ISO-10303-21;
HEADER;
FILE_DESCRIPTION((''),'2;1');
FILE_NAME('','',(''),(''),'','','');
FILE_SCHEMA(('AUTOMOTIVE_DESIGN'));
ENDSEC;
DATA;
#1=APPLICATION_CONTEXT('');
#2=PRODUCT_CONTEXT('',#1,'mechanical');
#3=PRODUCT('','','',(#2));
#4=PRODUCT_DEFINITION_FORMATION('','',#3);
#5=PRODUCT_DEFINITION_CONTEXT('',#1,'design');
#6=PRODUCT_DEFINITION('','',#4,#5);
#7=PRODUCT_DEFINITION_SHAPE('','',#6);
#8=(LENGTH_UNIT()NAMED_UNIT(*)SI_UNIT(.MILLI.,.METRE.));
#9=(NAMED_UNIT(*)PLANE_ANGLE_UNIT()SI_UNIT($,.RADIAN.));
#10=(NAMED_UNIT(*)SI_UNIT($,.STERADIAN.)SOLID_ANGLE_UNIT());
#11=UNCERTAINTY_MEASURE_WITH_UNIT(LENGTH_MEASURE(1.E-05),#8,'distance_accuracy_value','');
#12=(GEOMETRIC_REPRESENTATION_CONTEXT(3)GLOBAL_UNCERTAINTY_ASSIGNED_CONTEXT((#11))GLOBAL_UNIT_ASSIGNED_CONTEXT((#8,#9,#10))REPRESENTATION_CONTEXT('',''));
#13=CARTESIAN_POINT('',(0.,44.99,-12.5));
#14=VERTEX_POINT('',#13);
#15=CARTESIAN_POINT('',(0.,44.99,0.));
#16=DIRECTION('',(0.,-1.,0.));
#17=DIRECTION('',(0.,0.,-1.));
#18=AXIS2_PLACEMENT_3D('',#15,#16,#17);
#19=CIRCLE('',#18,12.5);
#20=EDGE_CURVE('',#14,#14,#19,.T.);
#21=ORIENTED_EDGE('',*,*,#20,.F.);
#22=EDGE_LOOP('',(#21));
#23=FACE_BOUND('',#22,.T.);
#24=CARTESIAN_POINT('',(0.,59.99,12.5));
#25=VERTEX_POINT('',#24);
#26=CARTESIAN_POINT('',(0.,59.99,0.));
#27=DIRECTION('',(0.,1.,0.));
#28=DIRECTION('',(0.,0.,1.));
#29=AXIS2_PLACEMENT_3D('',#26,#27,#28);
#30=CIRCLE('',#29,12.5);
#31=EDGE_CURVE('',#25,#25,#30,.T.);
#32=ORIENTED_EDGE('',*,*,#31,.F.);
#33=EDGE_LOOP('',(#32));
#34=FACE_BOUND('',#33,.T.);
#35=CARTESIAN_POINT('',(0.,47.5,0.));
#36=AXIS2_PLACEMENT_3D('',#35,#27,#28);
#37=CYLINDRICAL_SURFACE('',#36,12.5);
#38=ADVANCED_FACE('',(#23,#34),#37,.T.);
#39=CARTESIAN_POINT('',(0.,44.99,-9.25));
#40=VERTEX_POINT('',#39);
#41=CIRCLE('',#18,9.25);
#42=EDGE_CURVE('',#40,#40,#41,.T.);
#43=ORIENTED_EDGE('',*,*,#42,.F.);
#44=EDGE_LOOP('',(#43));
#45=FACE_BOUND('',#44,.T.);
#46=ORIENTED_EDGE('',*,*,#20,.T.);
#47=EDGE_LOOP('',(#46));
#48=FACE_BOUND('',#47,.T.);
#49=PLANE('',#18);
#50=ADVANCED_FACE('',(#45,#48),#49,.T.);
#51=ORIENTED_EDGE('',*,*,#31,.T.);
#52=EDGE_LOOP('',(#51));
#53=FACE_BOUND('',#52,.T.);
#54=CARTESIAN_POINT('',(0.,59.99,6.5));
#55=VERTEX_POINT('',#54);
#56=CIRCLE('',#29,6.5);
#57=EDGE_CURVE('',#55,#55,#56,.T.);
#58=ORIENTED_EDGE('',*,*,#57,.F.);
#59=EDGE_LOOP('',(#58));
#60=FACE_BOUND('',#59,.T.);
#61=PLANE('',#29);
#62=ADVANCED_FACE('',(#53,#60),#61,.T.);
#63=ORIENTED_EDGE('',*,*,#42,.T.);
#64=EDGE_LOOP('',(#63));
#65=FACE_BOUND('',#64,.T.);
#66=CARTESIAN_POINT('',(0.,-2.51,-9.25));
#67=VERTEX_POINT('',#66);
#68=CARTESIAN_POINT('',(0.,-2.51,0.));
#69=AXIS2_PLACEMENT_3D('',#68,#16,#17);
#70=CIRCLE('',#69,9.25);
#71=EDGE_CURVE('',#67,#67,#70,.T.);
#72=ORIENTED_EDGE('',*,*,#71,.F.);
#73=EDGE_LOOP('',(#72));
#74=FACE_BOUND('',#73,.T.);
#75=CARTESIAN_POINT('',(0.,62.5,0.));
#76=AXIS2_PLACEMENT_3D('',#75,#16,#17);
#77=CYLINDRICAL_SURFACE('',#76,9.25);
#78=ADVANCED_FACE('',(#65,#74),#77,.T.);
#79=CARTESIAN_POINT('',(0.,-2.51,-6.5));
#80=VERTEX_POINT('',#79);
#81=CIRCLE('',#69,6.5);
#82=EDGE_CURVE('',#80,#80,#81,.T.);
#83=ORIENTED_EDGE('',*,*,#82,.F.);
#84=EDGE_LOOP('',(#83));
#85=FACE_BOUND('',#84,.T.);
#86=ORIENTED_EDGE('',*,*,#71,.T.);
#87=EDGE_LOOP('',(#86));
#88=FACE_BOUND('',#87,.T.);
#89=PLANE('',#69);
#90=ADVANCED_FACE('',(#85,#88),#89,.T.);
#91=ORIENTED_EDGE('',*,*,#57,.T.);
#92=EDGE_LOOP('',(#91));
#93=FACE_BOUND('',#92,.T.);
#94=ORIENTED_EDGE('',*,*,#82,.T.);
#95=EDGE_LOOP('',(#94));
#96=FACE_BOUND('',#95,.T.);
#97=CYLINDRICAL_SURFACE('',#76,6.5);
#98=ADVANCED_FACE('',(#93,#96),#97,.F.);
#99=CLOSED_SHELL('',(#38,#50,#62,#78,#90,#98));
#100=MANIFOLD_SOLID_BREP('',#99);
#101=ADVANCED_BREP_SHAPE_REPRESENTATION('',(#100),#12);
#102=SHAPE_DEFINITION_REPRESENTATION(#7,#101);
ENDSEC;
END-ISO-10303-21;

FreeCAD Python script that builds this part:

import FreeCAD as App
import Part
import Sketcher
Q = App.Units.Quantity

doc = App.newDocument("Part")
body = doc.addObject("PartDesign::Body", "Body")

# Sketch on XZ plane
sketch1 = body.newObject("Sketcher::SketchObject", "Sketch")
sketch1.AttachmentSupport = (doc.getObject("XZ_Plane"), [""])
sketch1.MapMode = "FlatFace"
sketch1.addGeometry([
    Part.Circle(App.Vector(0, 0, 0), App.Vector(0, 0, 1), 9),
    Part.Circle(App.Vector(0, 0, 0), App.Vector(0, 0, 1), 6),
], False)
sketch1.addConstraint([
    Sketcher.Constraint("Coincident", 0, 3, -1, 1),
    Sketcher.Constraint("Coincident", 1, 3, -1, 1),
    Sketcher.Constraint("Diameter", 1, Q("13 mm")),
    Sketcher.Constraint("Diameter", 0, Q("18.5 mm")),
])
pad1 = body.newObject("PartDesign::Pad", "Pad")
pad1.Profile = sketch1
pad1.Length = 62.5
pad1.Reversed = True

# Sketch on XZ plane
sketch2 = body.newObject("Sketcher::SketchObject", "Sketch001")
sketch2.AttachmentSupport = (doc.getObject("XZ_Plane"), [""])
sketch2.MapMode = "FlatFace"
sketch2.AttachmentOffset = App.Placement(App.Vector(0, 0, -47.5), App.Rotation())
sketch2.addGeometry([
    Part.Circle(App.Vector(0, 0, 0), App.Vector(0, 0, 1), 12),
    Part.Circle(App.Vector(0, 0, 0), App.Vector(0, 0, 1), 6),
], False)
sketch2.addConstraint([
    Sketcher.Constraint("Coincident", 0, 3, -1, 1),
    Sketcher.Constraint("Coincident", 1, 3, -1, 1),
    Sketcher.Constraint("Diameter", 0, Q("25 mm")),
    Sketcher.Constraint("Diameter", 1, Q("13 mm")),
])
pad2 = body.newObject("PartDesign::Pad", "Pad001")
pad2.Profile = sketch2
pad2.Length = 15
pad2.Reversed = True

# Sketch on XZ plane
sketch3 = body.newObject("Sketcher::SketchObject", "Sketch002")
sketch3.AttachmentSupport = (doc.getObject("XZ_Plane"), [""])
sketch3.MapMode = "FlatFace"
sketch3.AttachmentOffset = App.Placement(App.Vector(0, 0, 2.51), App.Rotation())
sketch3.addGeometry([
    Part.Circle(App.Vector(0, 0, 0), App.Vector(0, 0, 1), 9),
    Part.Circle(App.Vector(0, 0, 0), App.Vector(0, 0, 1), 6),
], False)
sketch3.addConstraint([
    Sketcher.Constraint("Coincident", 0, 3, -1, 1),
    Sketcher.Constraint("Coincident", 1, 3, -1, 1),
    Sketcher.Constraint("Diameter", 1, Q("13 mm")),
    Sketcher.Constraint("Diameter", 0, Q("18.5 mm")),
])
pad3 = body.newObject("PartDesign::Pad", "Pad002")
pad3.Profile = sketch3
pad3.Length = 2.51
pad3.Reversed = True

# Sketch on XZ plane
sketch4 = body.newObject("Sketcher::SketchObject", "Sketch003")
sketch4.AttachmentSupport = (doc.getObject("XZ_Plane"), [""])
sketch4.MapMode = "FlatFace"
sketch4.AttachmentOffset = App.Placement(App.Vector(0, 0, -44.99), App.Rotation())
sketch4.addGeometry([
    Part.Circle(App.Vector(0, 0, 0), App.Vector(0, 0, 1), 12),
    Part.Circle(App.Vector(0, 0, 0), App.Vector(0, 0, 1), 9),
], False)
sketch4.addConstraint([
    Sketcher.Constraint("Coincident", 0, 3, -1, 1),
    Sketcher.Constraint("Coincident", 1, 3, -1, 1),
    Sketcher.Constraint("Diameter", 0, Q("25 mm")),
    Sketcher.Constraint("Diameter", 1, Q("18.5 mm")),
])
pad4 = body.newObject("PartDesign::Pad", "Pad003")
pad4.Profile = sketch4
pad4.Length = 2.51
pad4.Reversed = True

# Sketch on XZ plane
sketch5 = body.newObject("Sketcher::SketchObject", "Sketch004")
sketch5.AttachmentSupport = (doc.getObject("XZ_Plane"), [""])
sketch5.MapMode = "FlatFace"
sketch5.AttachmentOffset = App.Placement(App.Vector(0, 0, -59.99), App.Rotation())
sketch5.addGeometry([
    Part.Circle(App.Vector(0, 0, 0), App.Vector(0, 0, 1), 12),
    Part.Circle(App.Vector(0, 0, 0), App.Vector(0, 0, 1), 6),
], False)
sketch5.addConstraint([
    Sketcher.Constraint("Coincident", 0, 3, -1, 1),
    Sketcher.Constraint("Coincident", 1, 3, -1, 1),
    Sketcher.Constraint("Diameter", 0, Q("25 mm")),
    Sketcher.Constraint("Diameter", 1, Q("13 mm")),
])
pocket1 = body.newObject("PartDesign::Pocket", "Pocket")
pocket1.Profile = sketch5
pocket1.Length = 2.51

doc.recompute()
